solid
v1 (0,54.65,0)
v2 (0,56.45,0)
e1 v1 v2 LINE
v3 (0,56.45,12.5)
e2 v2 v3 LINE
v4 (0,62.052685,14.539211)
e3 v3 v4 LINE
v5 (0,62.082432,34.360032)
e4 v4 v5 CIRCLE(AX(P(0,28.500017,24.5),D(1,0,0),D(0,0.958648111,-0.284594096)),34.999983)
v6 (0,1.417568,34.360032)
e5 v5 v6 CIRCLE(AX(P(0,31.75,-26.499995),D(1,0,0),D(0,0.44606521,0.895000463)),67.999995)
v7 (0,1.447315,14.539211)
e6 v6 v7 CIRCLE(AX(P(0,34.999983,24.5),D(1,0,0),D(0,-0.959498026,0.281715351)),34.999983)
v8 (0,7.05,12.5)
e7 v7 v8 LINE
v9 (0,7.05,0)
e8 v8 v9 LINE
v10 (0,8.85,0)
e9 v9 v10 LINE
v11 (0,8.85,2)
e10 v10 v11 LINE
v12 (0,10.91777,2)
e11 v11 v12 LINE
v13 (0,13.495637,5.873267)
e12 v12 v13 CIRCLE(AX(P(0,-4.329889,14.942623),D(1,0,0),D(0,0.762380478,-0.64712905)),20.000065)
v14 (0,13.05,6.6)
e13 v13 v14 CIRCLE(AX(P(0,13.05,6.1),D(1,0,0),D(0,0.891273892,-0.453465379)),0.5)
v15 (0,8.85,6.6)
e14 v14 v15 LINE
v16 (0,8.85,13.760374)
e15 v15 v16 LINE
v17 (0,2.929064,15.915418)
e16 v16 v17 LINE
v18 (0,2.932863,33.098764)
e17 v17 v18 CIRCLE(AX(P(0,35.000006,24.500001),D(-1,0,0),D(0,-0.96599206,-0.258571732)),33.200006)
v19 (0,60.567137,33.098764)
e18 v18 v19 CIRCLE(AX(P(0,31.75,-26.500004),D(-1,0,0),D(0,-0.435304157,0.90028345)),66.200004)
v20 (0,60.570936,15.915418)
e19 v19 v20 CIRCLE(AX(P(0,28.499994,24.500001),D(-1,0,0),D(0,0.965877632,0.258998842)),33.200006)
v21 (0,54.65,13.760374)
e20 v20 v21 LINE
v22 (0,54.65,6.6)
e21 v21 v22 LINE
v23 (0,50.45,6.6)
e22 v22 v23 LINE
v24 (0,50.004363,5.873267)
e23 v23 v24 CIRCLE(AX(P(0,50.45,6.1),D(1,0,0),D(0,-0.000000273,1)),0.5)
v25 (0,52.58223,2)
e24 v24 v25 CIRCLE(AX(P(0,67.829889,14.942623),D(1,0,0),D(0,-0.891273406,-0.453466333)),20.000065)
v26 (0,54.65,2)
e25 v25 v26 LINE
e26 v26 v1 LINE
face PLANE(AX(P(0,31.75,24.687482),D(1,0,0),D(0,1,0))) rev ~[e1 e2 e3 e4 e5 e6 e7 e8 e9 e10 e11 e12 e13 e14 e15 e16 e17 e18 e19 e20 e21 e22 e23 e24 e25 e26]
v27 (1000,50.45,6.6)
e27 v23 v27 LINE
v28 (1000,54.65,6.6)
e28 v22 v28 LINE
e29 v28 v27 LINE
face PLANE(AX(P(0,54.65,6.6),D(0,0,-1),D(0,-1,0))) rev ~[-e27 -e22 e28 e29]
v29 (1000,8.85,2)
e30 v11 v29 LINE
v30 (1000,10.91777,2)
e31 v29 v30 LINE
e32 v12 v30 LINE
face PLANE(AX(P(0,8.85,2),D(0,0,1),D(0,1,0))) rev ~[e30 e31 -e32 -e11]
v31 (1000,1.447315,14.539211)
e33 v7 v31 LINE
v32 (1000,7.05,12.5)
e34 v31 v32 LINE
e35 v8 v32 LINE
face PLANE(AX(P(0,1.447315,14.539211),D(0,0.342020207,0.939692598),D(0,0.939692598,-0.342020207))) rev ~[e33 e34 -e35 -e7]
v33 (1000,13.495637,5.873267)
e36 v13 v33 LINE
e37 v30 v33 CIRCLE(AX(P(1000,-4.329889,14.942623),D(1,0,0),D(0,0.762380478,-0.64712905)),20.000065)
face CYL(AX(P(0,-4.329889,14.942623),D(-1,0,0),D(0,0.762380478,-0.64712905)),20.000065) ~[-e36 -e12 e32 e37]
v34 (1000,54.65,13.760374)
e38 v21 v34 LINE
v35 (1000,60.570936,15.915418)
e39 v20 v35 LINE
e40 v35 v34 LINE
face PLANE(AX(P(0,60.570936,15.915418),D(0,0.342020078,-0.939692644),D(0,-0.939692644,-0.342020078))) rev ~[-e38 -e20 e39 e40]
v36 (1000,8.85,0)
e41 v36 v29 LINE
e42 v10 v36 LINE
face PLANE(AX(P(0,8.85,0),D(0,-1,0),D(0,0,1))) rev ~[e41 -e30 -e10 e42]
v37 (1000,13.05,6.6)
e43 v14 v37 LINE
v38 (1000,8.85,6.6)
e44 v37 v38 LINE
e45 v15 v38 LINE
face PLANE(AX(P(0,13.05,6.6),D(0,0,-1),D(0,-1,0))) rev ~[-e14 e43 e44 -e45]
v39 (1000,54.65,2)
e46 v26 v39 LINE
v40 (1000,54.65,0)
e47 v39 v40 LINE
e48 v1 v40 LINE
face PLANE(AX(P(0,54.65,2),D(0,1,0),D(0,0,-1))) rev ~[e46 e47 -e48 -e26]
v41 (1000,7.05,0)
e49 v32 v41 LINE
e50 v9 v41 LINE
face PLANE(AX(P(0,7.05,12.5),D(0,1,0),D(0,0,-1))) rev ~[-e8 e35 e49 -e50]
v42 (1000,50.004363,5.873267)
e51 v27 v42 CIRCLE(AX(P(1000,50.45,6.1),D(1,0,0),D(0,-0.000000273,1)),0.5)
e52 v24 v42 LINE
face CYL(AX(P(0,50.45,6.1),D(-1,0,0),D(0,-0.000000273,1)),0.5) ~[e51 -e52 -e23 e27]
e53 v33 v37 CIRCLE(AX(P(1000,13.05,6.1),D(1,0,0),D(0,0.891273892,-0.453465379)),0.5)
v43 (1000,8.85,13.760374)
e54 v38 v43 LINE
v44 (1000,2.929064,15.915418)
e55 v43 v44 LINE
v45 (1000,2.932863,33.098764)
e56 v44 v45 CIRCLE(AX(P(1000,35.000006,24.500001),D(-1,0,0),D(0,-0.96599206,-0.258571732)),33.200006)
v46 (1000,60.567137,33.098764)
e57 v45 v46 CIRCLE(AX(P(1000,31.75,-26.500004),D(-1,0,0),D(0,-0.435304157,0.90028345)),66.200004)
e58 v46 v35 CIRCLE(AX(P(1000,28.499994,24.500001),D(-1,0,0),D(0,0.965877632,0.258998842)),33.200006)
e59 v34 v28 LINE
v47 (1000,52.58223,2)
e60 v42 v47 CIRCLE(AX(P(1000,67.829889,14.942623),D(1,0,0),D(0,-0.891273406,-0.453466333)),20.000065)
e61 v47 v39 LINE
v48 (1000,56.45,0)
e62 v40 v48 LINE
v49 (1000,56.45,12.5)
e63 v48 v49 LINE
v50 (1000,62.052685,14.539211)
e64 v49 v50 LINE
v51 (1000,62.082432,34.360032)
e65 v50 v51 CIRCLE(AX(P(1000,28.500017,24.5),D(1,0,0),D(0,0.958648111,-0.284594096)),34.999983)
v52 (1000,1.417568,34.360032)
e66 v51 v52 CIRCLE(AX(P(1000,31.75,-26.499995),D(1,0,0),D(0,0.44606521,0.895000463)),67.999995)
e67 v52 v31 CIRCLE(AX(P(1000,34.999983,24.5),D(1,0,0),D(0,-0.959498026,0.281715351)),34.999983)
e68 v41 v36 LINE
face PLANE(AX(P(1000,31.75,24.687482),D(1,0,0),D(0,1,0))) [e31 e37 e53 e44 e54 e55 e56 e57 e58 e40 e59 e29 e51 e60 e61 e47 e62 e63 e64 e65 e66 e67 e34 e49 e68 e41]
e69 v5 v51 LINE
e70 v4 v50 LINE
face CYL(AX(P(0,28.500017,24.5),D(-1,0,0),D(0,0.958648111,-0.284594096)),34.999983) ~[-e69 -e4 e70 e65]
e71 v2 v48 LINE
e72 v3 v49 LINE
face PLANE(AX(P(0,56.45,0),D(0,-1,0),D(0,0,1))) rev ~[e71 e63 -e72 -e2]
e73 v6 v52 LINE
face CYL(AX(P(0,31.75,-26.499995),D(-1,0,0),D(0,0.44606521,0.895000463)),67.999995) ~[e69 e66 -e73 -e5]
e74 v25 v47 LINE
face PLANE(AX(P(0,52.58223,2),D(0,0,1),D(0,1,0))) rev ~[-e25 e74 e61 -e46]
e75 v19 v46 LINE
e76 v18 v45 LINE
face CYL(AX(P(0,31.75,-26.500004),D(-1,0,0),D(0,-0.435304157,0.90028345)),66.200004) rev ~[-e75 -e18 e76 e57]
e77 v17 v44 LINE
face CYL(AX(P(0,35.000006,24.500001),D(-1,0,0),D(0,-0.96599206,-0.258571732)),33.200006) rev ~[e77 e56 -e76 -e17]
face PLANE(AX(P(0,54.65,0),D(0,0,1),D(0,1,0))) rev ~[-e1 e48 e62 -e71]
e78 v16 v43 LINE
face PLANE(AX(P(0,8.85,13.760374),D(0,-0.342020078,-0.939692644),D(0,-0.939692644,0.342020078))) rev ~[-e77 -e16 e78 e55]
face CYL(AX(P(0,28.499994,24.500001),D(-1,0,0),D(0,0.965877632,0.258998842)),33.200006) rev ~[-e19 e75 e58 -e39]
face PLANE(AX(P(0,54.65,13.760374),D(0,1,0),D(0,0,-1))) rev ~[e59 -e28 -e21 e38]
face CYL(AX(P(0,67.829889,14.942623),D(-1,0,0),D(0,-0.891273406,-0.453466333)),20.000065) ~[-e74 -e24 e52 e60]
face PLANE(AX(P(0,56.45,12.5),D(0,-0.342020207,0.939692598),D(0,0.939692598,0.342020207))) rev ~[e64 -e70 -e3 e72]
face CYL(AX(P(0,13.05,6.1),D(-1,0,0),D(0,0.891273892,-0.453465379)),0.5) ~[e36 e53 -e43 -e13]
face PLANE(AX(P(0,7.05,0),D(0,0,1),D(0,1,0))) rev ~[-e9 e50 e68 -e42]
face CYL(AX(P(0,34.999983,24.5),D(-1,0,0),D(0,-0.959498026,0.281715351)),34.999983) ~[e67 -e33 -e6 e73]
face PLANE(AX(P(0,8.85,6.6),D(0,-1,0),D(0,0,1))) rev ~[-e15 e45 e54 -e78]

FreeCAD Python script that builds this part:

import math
import FreeCAD as App
import Part
import Sketcher
Q = App.Units.Quantity

doc = App.newDocument("Part")
body = doc.addObject("PartDesign::Body", "Body")

# Sketch on YZ plane
sketch1 = body.newObject("Sketcher::SketchObject", "Sketch")
sketch1.AttachmentSupport = (doc.getObject("YZ_Plane"), [""])
sketch1.MapMode = "FlatFace"
sketch1.addGeometry(Part.LineSegment(App.Vector(56.45, 0, 0), App.Vector(56.45, 12.5, 0)), False)
sketch1.addGeometry(Part.LineSegment(App.Vector(56.45, 12.5, 0), App.Vector(62.052685, 14.539211, 0)), False)
sketch1.addGeometry(Part.ArcOfCircle(Part.Circle(App.Vector(28.500017, 24.5, 0), App.Vector(0, 0, 1), 34.999983), math.radians(-16.534587), math.radians(16.362609)), False)
sketch1.addGeometry(Part.ArcOfCircle(Part.Circle(App.Vector(31.75, -26.499995, 0), App.Vector(0, 0, 1), 67.999995), math.radians(63.508489), math.radians(116.491511)), False)
sketch1.addGeometry(Part.ArcOfCircle(Part.Circle(App.Vector(34.999983, 24.5, 0), App.Vector(0, 0, 1), 34.999983), math.radians(163.637391), math.radians(196.534587)), False)
sketch1.addGeometry(Part.LineSegment(App.Vector(1.447315, 14.539211, 0), App.Vector(7.05, 12.5, 0)), False)
sketch1.addGeometry(Part.LineSegment(App.Vector(7.05, 12.5, 0), App.Vector(7.05, 0, 0)), False)
sketch1.addGeometry(Part.LineSegment(App.Vector(7.05, 0, 0), App.Vector(8.85, 0, 0)), False)
sketch1.addGeometry(Part.LineSegment(App.Vector(8.85, 0, 0), App.Vector(8.85, 2, 0)), False)
sketch1.addGeometry(Part.LineSegment(App.Vector(8.85, 2, 0), App.Vector(10.91777, 2, 0)), False)
sketch1.addGeometry(Part.ArcOfCircle(Part.Circle(App.Vector(-4.329889, 14.942623, 0), App.Vector(0, 0, 1), 20.000065), math.radians(-40.325493), math.radians(-26.966299)), False)
sketch1.addGeometry(Part.ArcOfCircle(Part.Circle(App.Vector(13.05, 6.1, 0), App.Vector(0, 0, 1), 0.5), math.radians(-26.966237), math.radians(89.999984)), False)
sketch1.addGeometry(Part.LineSegment(App.Vector(13.05, 6.6, 0), App.Vector(8.85, 6.6, 0)), False)
sketch1.addGeometry(Part.LineSegment(App.Vector(8.85, 6.6, 0), App.Vector(8.85, 13.760374, 0)), False)
sketch1.addGeometry(Part.LineSegment(App.Vector(8.85, 13.760374, 0), App.Vector(2.929064, 15.915418, 0)), False)
sketch1.addGeometry(Part.ArcOfCircle(Part.Circle(App.Vector(35.000006, 24.500001, 0), App.Vector(0, 0, 1), 33.200006), math.radians(164.989335), math.radians(194.985331)), False)
sketch1.addGeometry(Part.ArcOfCircle(Part.Circle(App.Vector(31.75, -26.500004, 0), App.Vector(0, 0, 1), 66.200004), math.radians(64.195351), math.radians(115.804649)), False)
sketch1.addGeometry(Part.ArcOfCircle(Part.Circle(App.Vector(28.499994, 24.500001, 0), App.Vector(0, 0, 1), 33.200006), math.radians(-14.985331), math.radians(15.010665)), False)
sketch1.addGeometry(Part.LineSegment(App.Vector(60.570936, 15.915418, 0), App.Vector(54.65, 13.760374, 0)), False)
sketch1.addGeometry(Part.LineSegment(App.Vector(54.65, 13.760374, 0), App.Vector(54.65, 6.6, 0)), False)
sketch1.addGeometry(Part.LineSegment(App.Vector(54.65, 6.6, 0), App.Vector(50.45, 6.6, 0)), False)
sketch1.addGeometry(Part.ArcOfCircle(Part.Circle(App.Vector(50.45, 6.1, 0), App.Vector(0, 0, 1), 0.5), math.radians(90.000016), math.radians(206.966237)), False)
sketch1.addGeometry(Part.ArcOfCircle(Part.Circle(App.Vector(67.829889, 14.942623, 0), App.Vector(0, 0, 1), 20.000065), math.radians(-153.033701), math.radians(-139.674507)), False)
sketch1.addGeometry(Part.LineSegment(App.Vector(52.58223, 2, 0), App.Vector(54.65, 2, 0)), False)
sketch1.addGeometry(Part.LineSegment(App.Vector(54.65, 2, 0), App.Vector(54.65, 0, 0)), False)
sketch1.addGeometry(Part.LineSegment(App.Vector(54.65, 0, 0), App.Vector(56.45, 0, 0)), False)
sketch1.addConstraint(Sketcher.Constraint("Coincident", 0, 2, 1, 1))
sketch1.addConstraint(Sketcher.Constraint("Coincident", 1, 2, 2, 1))
sketch1.addConstraint(Sketcher.Constraint("Coincident", 2, 2, 3, 1))
sketch1.addConstraint(Sketcher.Constraint("Coincident", 3, 2, 4, 1))
sketch1.addConstraint(Sketcher.Constraint("Coincident", 4, 2, 5, 1))
sketch1.addConstraint(Sketcher.Constraint("Coincident", 5, 2, 6, 1))
sketch1.addConstraint(Sketcher.Constraint("Coincident", 6, 2, 7, 1))
sketch1.addConstraint(Sketcher.Constraint("Coincident", 7, 2, 8, 1))
sketch1.addConstraint(Sketcher.Constraint("Coincident", 8, 2, 9, 1))
sketch1.addConstraint(Sketcher.Constraint("Coincident", 9, 2, 10, 1))
sketch1.addConstraint(Sketcher.Constraint("Tangent", 10, 2, 11, 1))
sketch1.addConstraint(Sketcher.Constraint("Tangent", 11, 2, 12, 1))
sketch1.addConstraint(Sketcher.Constraint("Coincident", 12, 2, 13, 1))
sketch1.addConstraint(Sketcher.Constraint("Coincident", 13, 2, 14, 1))
sketch1.addConstraint(Sketcher.Constraint("Coincident", 14, 2, 15, 2))
sketch1.addConstraint(Sketcher.Constraint("Coincident", 15, 1, 16, 2))
sketch1.addConstraint(Sketcher.Constraint("Coincident", 16, 1, 17, 2))
sketch1.addConstraint(Sketcher.Constraint("Coincident", 17, 1, 18, 1))
sketch1.addConstraint(Sketcher.Constraint("Coincident", 18, 2, 19, 1))
sketch1.addConstraint(Sketcher.Constraint("Coincident", 19, 2, 20, 1))
sketch1.addConstraint(Sketcher.Constraint("Tangent", 20, 2, 21, 1))
sketch1.addConstraint(Sketcher.Constraint("Tangent", 21, 2, 22, 1))
sketch1.addConstraint(Sketcher.Constraint("Coincident", 22, 2, 23, 1))
sketch1.addConstraint(Sketcher.Constraint("Coincident", 23, 2, 24, 1))
sketch1.addConstraint(Sketcher.Constraint("Coincident", 24, 2, 25, 1))
sketch1.addConstraint(Sketcher.Constraint("Coincident", 25, 2, 0, 1))
sketch1.addConstraint(Sketcher.Constraint("Vertical", 0))
sketch1.addConstraint(Sketcher.Constraint("Vertical", 6))
sketch1.addConstraint(Sketcher.Constraint("Horizontal", 7))
sketch1.addConstraint(Sketcher.Constraint("Vertical", 8))
sketch1.addConstraint(Sketcher.Constraint("Horizontal", 9))
sketch1.addConstraint(Sketcher.Constraint("Horizontal", 12))
sketch1.addConstraint(Sketcher.Constraint("Vertical", 13))
sketch1.addConstraint(Sketcher.Constraint("Vertical", 19))
sketch1.addConstraint(Sketcher.Constraint("Horizontal", 20))
sketch1.addConstraint(Sketcher.Constraint("Horizontal", 23))
sketch1.addConstraint(Sketcher.Constraint("Vertical", 24))
sketch1.addConstraint(Sketcher.Constraint("Horizontal", 25))
sketch1.addConstraint(Sketcher.Constraint("Coincident", 16, 3, 3, 3))
sketch1.addConstraint(Sketcher.Constraint("Equal", 2, 4))
sketch1.addConstraint(Sketcher.Constraint("Equal", 15, 17))
sketch1.addConstraint(Sketcher.Constraint("Equal", 11, 21))
sketch1.addConstraint(Sketcher.Constraint("Equal", 10, 22))
sketch1.addConstraint(Sketcher.Constraint("PointOnObject", 6, 2, -1))
sketch1.addConstraint(Sketcher.Constraint("PointOnObject", 24, 2, -1))
sketch1.addConstraint(Sketcher.Constraint("Parallel", 5, 14))
sketch1.addConstraint(Sketcher.Constraint("Parallel", 1, 18))
sketch1.addConstraint(Sketcher.Constraint("Horizontal", 2, 3, 4, 3))
sketch1.addConstraint(Sketcher.Constraint("Horizontal", 4, 3, 15, 3))
sketch1.addConstraint(Sketcher.Constraint("Horizontal", 15, 3, 17, 3))
sketch1.addConstraint(Sketcher.Constraint("Horizontal", 11, 3, 21, 3))
sketch1.addConstraint(Sketcher.Constraint("Horizontal", 10, 3, 22, 3))
sketch1.addConstraint(Sketcher.Constraint("Horizontal", 2, 2, 3, 2))
sketch1.addConstraint(Sketcher.Constraint("Horizontal", 1, 2, 4, 2))
sketch1.addConstraint(Sketcher.Constraint("Horizontal", 0, 2, 5, 2))
sketch1.addConstraint(Sketcher.Constraint("Horizontal", 15, 1, 16, 1))
sketch1.addConstraint(Sketcher.Constraint("Horizontal", 14, 2, 17, 1))
sketch1.addConstraint(Sketcher.Constraint("Horizontal", 13, 2, 18, 2))
sketch1.addConstraint(Sketcher.Constraint("Horizontal", 9, 2, 22, 2))
sketch1.addConstraint(Sketcher.Constraint("Vertical", 8, 2, 12, 2))
sketch1.addConstraint(Sketcher.Constraint("Vertical", 19, 2, 23, 2))
sketch1.addConstraint(Sketcher.Constraint("Equal", 12, 20))
sketch1.addConstraint(Sketcher.Constraint("Equal", 7, 25))
sketch1.addConstraint(Sketcher.Constraint("Radius", 11, Q("0.5 mm")))
sketch1.addConstraint(Sketcher.Constraint("DistanceY", 8, 1, 8, 2, Q("2 mm")))
sketch1.addConstraint(Sketcher.Constraint("Angle", 1, Q("20.000004 deg")))
sketch1.addConstraint(Sketcher.Constraint("DistanceX", 7, 1, 7, 2, Q("1.8 mm")))
sketch1.addConstraint(Sketcher.Constraint("DistanceX", 12, 2, 12, 1, Q("4.2 mm")))
sketch1.addConstraint(Sketcher.Constraint("DistanceY", 0, 1, 0, 2, Q("12.5 mm")))
sketch1.addConstraint(Sketcher.Constraint("DistanceY", 0, 2, 15, 3, Q("12.000001 mm")))
sketch1.addConstraint(Sketcher.Constraint("DistanceY", -1, 1, 11, 3, Q("6.1 mm")))
sketch1.addConstraint(Sketcher.Constraint("DistanceX", 11, 3, 3, 3, Q("18.7 mm")))
sketch1.addConstraint(Sketcher.Constraint("DistanceX", -1, 1, 3, 3, Q("31.75 mm")))
sketch1.addConstraint(Sketcher.Constraint("Radius", 2, Q("34.999983 mm")))
sketch1.addConstraint(Sketcher.Constraint("Radius", 3, Q("67.999995 mm")))
sketch1.addConstraint(Sketcher.Constraint("Radius", 10, Q("20.000065 mm")))
sketch1.addConstraint(Sketcher.Constraint("Radius", 15, Q("33.200006 mm")))
sketch1.addConstraint(Sketcher.Constraint("Radius", 16, Q("66.200004 mm")))
sketch1.addConstraint(Sketcher.Constraint("DistanceX", 9, 1, 9, 2, Q("2.06777 mm")))
sketch1.addConstraint(Sketcher.Constraint("DistanceX", 14, 2, 15, 1, Q("0.003799 mm")))
sketch1.addConstraint(Sketcher.Constraint("Distance", 14, Q("6.300928 mm")))
sketch1.addConstraint(Sketcher.Constraint("DistanceY", 13, 1, 13, 2, Q("7.160374 mm")))
sketch1.addConstraint(Sketcher.Constraint("DistanceY", -1, 1, 1, 2, Q("14.539211 mm")))
pad1 = body.newObject("PartDesign::Pad", "Pad")
pad1.Profile = sketch1
pad1.Length = 1000

doc.recompute()
